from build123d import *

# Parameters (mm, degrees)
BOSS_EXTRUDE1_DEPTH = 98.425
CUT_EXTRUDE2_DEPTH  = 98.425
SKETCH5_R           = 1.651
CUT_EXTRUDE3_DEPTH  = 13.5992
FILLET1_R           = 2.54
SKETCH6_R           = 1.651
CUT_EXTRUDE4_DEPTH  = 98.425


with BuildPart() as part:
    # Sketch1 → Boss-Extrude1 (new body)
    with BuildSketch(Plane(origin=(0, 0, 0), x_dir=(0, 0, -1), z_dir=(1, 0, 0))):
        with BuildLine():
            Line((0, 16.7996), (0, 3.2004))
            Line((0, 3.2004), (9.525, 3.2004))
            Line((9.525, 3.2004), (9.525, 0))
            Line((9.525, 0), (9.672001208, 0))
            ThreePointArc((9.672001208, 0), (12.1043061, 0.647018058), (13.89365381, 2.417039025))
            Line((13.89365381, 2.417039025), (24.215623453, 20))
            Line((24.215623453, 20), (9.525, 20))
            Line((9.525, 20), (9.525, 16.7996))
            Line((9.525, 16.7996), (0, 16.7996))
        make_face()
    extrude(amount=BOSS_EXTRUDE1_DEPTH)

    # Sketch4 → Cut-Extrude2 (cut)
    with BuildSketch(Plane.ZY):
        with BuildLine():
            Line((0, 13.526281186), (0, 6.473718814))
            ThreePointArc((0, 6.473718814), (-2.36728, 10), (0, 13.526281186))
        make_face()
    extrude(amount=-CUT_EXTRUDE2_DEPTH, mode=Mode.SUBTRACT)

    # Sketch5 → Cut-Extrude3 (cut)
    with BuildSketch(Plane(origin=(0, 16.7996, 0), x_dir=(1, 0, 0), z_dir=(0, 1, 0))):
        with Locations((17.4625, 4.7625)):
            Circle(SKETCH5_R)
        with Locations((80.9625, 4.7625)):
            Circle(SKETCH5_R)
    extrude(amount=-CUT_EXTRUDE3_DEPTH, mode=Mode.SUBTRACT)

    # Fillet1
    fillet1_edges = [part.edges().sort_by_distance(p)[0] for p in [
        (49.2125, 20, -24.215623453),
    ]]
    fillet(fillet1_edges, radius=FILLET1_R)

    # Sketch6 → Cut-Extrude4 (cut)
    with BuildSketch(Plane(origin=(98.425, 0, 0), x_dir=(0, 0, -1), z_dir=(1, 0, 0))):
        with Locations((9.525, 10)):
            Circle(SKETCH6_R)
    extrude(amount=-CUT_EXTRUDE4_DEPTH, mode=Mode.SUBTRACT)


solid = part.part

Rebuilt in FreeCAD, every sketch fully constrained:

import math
import FreeCAD as App
import Part
import Sketcher
from FreeCAD import Vector
Q = App.Units.Quantity


def edges_at(feature, points):
    """Names of the edges that pass closest to the given points."""
    edges = feature.Shape.Edges
    near = lambda p: min(range(len(edges)), key=lambda i: edges[i].distToShape(Part.Vertex(*p))[0])
    return sorted({f"Edge{near(p) + 1}" for p in points})

doc = App.newDocument("Part")
body = doc.addObject("PartDesign::Body", "Body")

# Sketch on YZ plane
sketch1 = body.newObject("Sketcher::SketchObject", "Sketch")
sketch1.AttachmentSupport = (doc.getObject("YZ_Plane"), [""])
sketch1.MapMode = "FlatFace"
sketch1.addGeometry(Part.LineSegment(Vector(16.8, 0, 0), Vector(3.2, 0, 0)), False)
sketch1.addGeometry(Part.LineSegment(Vector(3.2, 0, 0), Vector(3.2, -9.53, 0)), False)
sketch1.addGeometry(Part.LineSegment(Vector(3.2, -9.53, 0), Vector(0, -9.53, 0)), False)
sketch1.addGeometry(Part.LineSegment(Vector(0, -9.53, 0), Vector(0, -9.67, 0)), False)
sketch1.addGeometry(Part.ArcOfCircle(Part.Circle(Vector(4.9, -9.67, 0), Vector(0, 0, 1), 4.9), math.radians(180), math.radians(240)), False)
sketch1.addGeometry(Part.LineSegment(Vector(2.42, -13.89, 0), Vector(20, -24.22, 0)), False)
sketch1.addGeometry(Part.LineSegment(Vector(20, -24.22, 0), Vector(20, -9.53, 0)), False)
sketch1.addGeometry(Part.LineSegment(Vector(20, -9.53, 0), Vector(16.8, -9.53, 0)), False)
sketch1.addGeometry(Part.LineSegment(Vector(16.8, -9.53, 0), Vector(16.8, 0, 0)), False)
sketch1.addConstraint(Sketcher.Constraint("Coincident", 0, 2, 1, 1))
sketch1.addConstraint(Sketcher.Constraint("Coincident", 1, 2, 2, 1))
sketch1.addConstraint(Sketcher.Constraint("Coincident", 2, 2, 3, 1))
sketch1.addConstraint(Sketcher.Constraint("Tangent", 3, 2, 4, 1))
sketch1.addConstraint(Sketcher.Constraint("Tangent", 4, 2, 5, 1))
sketch1.addConstraint(Sketcher.Constraint("Coincident", 5, 2, 6, 1))
sketch1.addConstraint(Sketcher.Constraint("Coincident", 6, 2, 7, 1))
sketch1.addConstraint(Sketcher.Constraint("Coincident", 7, 2, 8, 1))
sketch1.addConstraint(Sketcher.Constraint("Coincident", 8, 2, 0, 1))
sketch1.addConstraint(Sketcher.Constraint("Horizontal", 0))
sketch1.addConstraint(Sketcher.Constraint("Vertical", 1))
sketch1.addConstraint(Sketcher.Constraint("Horizontal", 2))
sketch1.addConstraint(Sketcher.Constraint("Vertical", 3))
sketch1.addConstraint(Sketcher.Constraint("Vertical", 6))
sketch1.addConstraint(Sketcher.Constraint("Horizontal", 7))
sketch1.addConstraint(Sketcher.Constraint("Vertical", 8))
sketch1.addConstraint(Sketcher.Constraint("PointOnObject", 0, 2, -1))
sketch1.addConstraint(Sketcher.Constraint("PointOnObject", 2, 2, -2))
sketch1.addConstraint(Sketcher.Constraint("Horizontal", 2, 2, 6, 2))
sketch1.addConstraint(Sketcher.Constraint("Equal", 2, 7))
sketch1.addConstraint(Sketcher.Constraint("DistanceX", 2, 2, 2, 1, Q("0.126 in")))
sketch1.addConstraint(Sketcher.Constraint("DistanceY", 1, 2, 1, 1, Q("0.375 in")))
sketch1.addConstraint(Sketcher.Constraint("DistanceX", 0, 2, 0, 1, Q("13.5992 mm")))
sketch1.addConstraint(Sketcher.Constraint("DistanceY", 3, 2, 3, 1, Q("0.147001 mm")))
sketch1.addConstraint(Sketcher.Constraint("Radius", 4, Q("4.895334 mm")))
sketch1.addConstraint(Sketcher.Constraint("Distance", 5, Q("20.38881 mm")))
pad1 = body.newObject("PartDesign::Pad", "Pad")
pad1.Profile = sketch1
pad1.Length = Q("3.875 in")

# Sketch on YZ plane
sketch2 = body.newObject("Sketcher::SketchObject", "Sketch001")
sketch2.AttachmentSupport = (doc.getObject("YZ_Plane"), [""])
sketch2.MapMode = "FlatFace"
sketch2.addGeometry(Part.LineSegment(Vector(6.5, 0, 0), Vector(13.5, 0, 0)), False)
sketch2.addGeometry(Part.ArcOfCircle(Part.Circle(Vector(10, 1.4, 0), Vector(0, 0, 1), 3.8), math.radians(-158), math.radians(-22)), False)
sketch2.addConstraint(Sketcher.Constraint("Coincident", 0, 1, 1, 1))
sketch2.addConstraint(Sketcher.Constraint("Coincident", 1, 2, 0, 2))
sketch2.addConstraint(Sketcher.Constraint("Horizontal", 0))
sketch2.addConstraint(Sketcher.Constraint("PointOnObject", 0, 1, -1))
sketch2.addConstraint(Sketcher.Constraint("Radius", 1, Q("0.15 in")))
sketch2.addConstraint(Sketcher.Constraint("DistanceY", -1, 1, 1, 3, Q("0.0568 in")))
sketch2.addConstraint(Sketcher.Constraint("DistanceX", -1, 1, 1, 3, Q("10 mm")))
pocket1 = body.newObject("PartDesign::Pocket", "Pocket")
pocket1.Profile = sketch2
pocket1.Length = Q("3.875 in")
pocket1.Reversed = True

# Sketch on XZ plane
sketch3 = body.newObject("Sketcher::SketchObject", "Sketch002")
sketch3.AttachmentSupport = (doc.getObject("XZ_Plane"), [""])
sketch3.MapMode = "FlatFace"
sketch3.AttachmentOffset = App.Placement(Vector(0, 0, -16.7996), App.Rotation())
sketch3.addGeometry(Part.Circle(Vector(17.5, -4.8, 0), Vector(0, 0, 1), 1.7), False)
sketch3.addGeometry(Part.Circle(Vector(81, -4.8, 0), Vector(0, 0, 1), 1.7), False)
sketch3.addConstraint(Sketcher.Constraint("Equal", 0, 1))
sketch3.addConstraint(Sketcher.Constraint("Horizontal", 0, 3, 1, 3))
sketch3.addConstraint(Sketcher.Constraint("Diameter", 0, Q("0.13 in")))
sketch3.addConstraint(Sketcher.Constraint("DistanceX", 0, 3, 1, 3, Q("2.5 in")))
sketch3.addConstraint(Sketcher.Constraint("DistanceX", -1, 1, 0, 3, Q("0.6875 in")))
sketch3.addConstraint(Sketcher.Constraint("DistanceY", 0, 3, -1, 1, Q("0.1875 in")))
pocket2 = body.newObject("PartDesign::Pocket", "Pocket001")
pocket2.Profile = sketch3
pocket2.Length = 13.5992
pocket2.Reversed = True
doc.recompute()

fillet = body.newObject("PartDesign::Fillet", "Fillet")
fillet.Base = (pocket2, edges_at(pocket2, [(49.212, 20, -24.216)]))
fillet.Radius = Q("0.1 in")

# Sketch on YZ plane
sketch4 = body.newObject("Sketcher::SketchObject", "Sketch003")
sketch4.AttachmentSupport = (doc.getObject("YZ_Plane"), [""])
sketch4.MapMode = "FlatFace"
sketch4.AttachmentOffset = App.Placement(Vector(0, 0, 3.875 * 25.4), App.Rotation())
sketch4.addGeometry(Part.Circle(Vector(10, -9.5, 0), Vector(0, 0, 1), 1.7), False)
sketch4.addConstraint(Sketcher.Constraint("Diameter", 0, Q("0.13 in")))
sketch4.addConstraint(Sketcher.Constraint("DistanceY", 0, 3, -1, 1, Q("0.375 in")))
sketch4.addConstraint(Sketcher.Constraint("DistanceX", -1, 1, 0, 3, Q("10 mm")))
pocket3 = body.newObject("PartDesign::Pocket", "Pocket002")
pocket3.Profile = sketch4
pocket3.Length = Q("3.875 in")

doc.recompute()
